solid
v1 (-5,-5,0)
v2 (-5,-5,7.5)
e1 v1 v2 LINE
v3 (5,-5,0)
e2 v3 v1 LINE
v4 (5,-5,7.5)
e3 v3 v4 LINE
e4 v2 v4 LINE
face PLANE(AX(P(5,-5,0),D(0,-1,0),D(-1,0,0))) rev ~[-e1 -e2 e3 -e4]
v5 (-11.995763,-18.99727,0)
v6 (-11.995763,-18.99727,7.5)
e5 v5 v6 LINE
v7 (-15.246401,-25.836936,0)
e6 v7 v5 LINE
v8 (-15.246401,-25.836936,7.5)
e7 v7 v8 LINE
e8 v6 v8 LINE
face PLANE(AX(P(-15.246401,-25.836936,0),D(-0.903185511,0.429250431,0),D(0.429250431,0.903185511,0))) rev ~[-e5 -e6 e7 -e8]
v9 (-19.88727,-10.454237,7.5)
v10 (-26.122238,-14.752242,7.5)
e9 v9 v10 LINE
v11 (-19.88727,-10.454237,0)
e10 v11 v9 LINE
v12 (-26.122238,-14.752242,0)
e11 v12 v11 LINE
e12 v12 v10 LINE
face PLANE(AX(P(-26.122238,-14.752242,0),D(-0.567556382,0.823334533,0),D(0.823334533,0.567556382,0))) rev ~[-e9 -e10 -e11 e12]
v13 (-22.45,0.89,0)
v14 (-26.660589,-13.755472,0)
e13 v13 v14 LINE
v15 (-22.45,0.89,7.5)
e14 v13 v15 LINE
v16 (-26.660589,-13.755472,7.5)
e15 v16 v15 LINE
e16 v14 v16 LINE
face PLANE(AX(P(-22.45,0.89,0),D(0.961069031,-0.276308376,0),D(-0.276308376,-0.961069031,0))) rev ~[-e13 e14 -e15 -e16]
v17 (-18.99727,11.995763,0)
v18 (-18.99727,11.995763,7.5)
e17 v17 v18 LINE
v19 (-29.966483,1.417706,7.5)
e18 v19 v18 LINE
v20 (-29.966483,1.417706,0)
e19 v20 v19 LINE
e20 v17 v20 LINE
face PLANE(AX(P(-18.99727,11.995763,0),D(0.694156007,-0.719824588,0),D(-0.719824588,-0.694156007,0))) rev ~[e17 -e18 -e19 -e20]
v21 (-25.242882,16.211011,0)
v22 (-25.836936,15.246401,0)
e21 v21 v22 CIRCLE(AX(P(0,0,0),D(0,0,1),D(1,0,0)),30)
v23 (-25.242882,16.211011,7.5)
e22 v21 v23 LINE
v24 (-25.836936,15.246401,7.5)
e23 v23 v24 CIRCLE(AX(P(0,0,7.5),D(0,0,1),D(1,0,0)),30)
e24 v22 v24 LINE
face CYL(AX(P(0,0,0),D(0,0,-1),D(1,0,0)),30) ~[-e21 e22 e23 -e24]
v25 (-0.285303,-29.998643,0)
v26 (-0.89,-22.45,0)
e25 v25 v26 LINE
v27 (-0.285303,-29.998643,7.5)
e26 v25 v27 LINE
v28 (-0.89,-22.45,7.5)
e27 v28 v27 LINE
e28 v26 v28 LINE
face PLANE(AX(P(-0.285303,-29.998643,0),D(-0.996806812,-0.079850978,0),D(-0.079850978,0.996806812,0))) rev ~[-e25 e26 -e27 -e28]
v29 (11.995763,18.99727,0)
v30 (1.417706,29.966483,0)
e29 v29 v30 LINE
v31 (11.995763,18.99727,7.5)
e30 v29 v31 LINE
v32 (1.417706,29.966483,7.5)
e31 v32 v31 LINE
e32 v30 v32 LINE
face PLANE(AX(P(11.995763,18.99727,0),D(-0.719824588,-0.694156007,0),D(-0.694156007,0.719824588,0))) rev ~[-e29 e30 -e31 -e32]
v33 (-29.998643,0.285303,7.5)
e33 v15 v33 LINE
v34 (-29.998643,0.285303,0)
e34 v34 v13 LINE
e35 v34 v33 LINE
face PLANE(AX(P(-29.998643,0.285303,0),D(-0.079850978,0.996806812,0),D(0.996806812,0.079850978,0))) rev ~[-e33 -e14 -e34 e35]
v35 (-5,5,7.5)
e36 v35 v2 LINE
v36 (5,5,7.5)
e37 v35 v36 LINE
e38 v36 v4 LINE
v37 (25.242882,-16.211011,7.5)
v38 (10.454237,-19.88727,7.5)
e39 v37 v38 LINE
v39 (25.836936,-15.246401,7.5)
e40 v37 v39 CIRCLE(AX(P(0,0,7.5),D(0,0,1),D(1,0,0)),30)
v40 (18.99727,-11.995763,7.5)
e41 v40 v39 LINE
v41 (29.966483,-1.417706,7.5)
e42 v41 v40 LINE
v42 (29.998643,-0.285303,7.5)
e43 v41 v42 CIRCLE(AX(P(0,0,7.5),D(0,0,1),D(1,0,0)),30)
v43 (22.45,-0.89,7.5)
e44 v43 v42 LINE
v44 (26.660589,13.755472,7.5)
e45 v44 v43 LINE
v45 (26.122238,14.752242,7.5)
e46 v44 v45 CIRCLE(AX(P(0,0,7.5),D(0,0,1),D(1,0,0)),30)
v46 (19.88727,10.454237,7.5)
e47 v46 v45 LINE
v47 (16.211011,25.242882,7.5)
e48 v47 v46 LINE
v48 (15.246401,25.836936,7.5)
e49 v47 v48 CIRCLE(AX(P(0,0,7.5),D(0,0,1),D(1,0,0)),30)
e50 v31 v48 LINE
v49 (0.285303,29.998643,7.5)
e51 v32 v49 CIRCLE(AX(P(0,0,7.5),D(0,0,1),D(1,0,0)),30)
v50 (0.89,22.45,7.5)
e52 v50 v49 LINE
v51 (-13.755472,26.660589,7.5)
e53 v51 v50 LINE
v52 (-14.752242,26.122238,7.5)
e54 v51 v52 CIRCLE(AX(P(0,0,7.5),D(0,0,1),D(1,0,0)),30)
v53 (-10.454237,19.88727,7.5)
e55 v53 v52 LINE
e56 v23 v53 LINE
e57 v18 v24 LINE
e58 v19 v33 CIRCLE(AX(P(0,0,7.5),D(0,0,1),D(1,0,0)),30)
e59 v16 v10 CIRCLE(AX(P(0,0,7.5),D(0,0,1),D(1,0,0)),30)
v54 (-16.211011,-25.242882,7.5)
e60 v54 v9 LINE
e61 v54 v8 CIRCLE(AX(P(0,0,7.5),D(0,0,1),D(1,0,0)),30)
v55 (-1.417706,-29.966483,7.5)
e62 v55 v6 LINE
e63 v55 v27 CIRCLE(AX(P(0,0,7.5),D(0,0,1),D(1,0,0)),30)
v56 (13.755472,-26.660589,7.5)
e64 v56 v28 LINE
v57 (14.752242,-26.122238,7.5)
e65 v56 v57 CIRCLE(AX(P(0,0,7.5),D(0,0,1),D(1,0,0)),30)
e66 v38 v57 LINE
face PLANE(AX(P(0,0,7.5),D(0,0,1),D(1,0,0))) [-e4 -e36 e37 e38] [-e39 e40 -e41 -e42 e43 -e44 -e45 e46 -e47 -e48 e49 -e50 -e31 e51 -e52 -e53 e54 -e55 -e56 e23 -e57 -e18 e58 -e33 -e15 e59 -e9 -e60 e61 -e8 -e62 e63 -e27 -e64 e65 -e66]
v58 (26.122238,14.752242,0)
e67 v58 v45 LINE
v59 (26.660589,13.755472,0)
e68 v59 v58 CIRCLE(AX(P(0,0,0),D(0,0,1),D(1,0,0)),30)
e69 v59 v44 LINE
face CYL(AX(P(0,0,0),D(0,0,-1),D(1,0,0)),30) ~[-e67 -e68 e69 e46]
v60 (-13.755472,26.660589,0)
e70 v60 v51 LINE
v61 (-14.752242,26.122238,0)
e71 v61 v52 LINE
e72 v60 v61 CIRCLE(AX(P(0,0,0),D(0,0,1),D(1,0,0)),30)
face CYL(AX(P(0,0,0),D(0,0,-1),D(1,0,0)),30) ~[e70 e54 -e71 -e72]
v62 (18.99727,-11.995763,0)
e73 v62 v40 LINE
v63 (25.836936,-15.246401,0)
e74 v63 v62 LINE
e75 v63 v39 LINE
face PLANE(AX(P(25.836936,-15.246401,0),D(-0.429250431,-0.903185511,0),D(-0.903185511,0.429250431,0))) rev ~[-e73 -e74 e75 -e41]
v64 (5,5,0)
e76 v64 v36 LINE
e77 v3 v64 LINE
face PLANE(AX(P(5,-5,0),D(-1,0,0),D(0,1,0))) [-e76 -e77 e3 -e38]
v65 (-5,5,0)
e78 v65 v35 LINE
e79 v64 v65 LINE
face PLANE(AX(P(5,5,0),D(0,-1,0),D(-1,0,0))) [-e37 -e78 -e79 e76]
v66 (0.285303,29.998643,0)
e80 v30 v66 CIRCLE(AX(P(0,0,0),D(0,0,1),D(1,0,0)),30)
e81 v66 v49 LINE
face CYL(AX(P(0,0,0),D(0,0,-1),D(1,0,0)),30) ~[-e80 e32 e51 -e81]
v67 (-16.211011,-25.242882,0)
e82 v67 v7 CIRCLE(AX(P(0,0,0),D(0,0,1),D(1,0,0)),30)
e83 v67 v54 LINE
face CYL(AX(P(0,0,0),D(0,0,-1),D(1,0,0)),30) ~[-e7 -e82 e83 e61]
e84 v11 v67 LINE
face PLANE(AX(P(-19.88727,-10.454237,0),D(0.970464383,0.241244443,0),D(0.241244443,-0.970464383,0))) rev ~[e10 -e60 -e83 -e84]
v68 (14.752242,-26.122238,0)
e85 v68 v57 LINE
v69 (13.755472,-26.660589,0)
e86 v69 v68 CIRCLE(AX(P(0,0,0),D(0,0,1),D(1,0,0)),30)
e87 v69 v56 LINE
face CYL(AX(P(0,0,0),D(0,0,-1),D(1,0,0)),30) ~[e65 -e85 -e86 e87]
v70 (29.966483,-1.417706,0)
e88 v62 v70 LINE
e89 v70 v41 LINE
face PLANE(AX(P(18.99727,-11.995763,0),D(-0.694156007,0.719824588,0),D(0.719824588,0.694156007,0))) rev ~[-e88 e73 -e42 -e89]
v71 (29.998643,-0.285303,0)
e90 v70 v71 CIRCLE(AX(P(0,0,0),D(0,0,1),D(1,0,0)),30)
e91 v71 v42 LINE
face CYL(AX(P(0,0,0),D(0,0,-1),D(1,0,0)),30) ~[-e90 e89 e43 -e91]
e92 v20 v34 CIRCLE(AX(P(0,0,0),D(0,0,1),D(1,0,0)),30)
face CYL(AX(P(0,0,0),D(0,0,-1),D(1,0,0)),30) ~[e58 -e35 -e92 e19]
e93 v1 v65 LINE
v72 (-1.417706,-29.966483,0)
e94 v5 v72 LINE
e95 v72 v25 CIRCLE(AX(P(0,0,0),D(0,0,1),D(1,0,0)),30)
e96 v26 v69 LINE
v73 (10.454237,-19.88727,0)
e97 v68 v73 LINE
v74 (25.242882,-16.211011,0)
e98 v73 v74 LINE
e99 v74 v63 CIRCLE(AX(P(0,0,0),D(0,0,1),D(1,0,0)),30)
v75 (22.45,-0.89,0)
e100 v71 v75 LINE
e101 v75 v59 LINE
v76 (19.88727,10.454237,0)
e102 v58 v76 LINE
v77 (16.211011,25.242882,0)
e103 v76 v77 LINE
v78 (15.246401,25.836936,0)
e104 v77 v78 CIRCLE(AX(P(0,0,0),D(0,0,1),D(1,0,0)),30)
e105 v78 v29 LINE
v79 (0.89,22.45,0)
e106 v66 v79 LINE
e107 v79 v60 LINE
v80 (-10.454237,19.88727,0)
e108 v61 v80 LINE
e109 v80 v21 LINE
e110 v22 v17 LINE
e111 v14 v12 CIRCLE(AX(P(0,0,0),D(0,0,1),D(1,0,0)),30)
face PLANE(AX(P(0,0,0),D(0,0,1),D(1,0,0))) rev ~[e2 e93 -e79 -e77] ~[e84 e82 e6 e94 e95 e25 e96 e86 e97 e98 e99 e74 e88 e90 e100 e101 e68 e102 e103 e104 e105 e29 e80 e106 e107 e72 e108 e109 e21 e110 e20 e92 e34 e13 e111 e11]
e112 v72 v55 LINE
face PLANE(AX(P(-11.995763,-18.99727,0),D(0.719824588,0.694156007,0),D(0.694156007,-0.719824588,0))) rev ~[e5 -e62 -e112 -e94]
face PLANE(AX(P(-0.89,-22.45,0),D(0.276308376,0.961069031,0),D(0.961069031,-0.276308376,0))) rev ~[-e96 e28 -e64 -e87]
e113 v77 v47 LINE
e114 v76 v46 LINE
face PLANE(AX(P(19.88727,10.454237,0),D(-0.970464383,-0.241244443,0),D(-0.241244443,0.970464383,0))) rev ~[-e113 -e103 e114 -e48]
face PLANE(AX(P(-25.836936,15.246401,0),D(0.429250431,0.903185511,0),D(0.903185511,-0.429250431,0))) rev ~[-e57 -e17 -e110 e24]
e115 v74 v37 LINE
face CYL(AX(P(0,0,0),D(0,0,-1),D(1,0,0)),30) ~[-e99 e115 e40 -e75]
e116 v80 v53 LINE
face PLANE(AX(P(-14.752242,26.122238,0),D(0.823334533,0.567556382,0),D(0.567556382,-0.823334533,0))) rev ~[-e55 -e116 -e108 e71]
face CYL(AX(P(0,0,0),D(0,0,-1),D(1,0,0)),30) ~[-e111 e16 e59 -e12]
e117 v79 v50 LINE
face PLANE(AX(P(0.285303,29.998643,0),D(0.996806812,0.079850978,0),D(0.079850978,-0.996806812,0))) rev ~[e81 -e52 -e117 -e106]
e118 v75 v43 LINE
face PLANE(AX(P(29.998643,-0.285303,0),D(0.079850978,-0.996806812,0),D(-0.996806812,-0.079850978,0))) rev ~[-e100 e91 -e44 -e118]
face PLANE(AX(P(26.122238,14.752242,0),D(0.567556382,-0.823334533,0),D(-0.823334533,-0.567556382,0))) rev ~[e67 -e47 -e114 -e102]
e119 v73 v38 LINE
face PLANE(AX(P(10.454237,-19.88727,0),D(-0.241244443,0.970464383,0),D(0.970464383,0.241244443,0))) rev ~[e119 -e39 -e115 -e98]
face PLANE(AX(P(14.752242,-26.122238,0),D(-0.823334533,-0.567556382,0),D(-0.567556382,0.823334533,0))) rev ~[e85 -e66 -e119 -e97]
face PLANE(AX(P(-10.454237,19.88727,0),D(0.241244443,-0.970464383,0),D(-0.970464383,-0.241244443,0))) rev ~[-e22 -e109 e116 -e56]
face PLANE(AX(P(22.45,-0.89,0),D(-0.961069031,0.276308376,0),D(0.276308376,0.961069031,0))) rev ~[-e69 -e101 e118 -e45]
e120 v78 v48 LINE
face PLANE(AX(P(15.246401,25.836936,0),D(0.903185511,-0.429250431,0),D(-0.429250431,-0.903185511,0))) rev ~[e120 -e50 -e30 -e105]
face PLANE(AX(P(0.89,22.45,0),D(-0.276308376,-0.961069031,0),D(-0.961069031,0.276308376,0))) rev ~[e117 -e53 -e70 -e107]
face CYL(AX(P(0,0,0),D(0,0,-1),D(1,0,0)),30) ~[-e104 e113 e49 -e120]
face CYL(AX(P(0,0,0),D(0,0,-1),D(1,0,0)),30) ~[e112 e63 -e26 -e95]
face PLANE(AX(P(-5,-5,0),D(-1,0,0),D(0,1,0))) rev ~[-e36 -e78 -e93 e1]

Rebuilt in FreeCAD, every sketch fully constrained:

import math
import FreeCAD as App
import Part
import Sketcher

V = App.Vector
Q = App.Units.Quantity


def add_polygon(sketch, points):
    """Adds a closed chain of lines whose ends are joined by coincident constraints."""
    first, n = sketch.GeometryCount, len(points)
    for a, b in zip(points, points[1:] + points[:1]):
        sketch.addGeometry(Part.LineSegment(App.Vector(*a, 0), App.Vector(*b, 0)), False)
    for i in range(n):
        sketch.addConstraint(Sketcher.Constraint("Coincident", first + i, 2, first + (i + 1) % n, 1))

doc = App.newDocument("Part")
body = doc.addObject("PartDesign::Body", "Body")

# Sketch on XY plane
sketch1 = doc.addObject("Sketcher::SketchObject", "Sketch")
body.addObject(sketch1)
sketch1.AttachmentSupport = (doc.XY_Plane, [""])
sketch1.MapMode = "FlatFace"
sketch1.addGeometry(Part.Circle(V(0, 0, 0), V(0, 0, 1), 30), False)
sketch1.addConstraint(Sketcher.Constraint("Coincident", 0, 3, -1, 1))
sketch1.addConstraint(Sketcher.Constraint("Diameter", 0, Q("60 mm")))
pad1 = doc.addObject("PartDesign::Pad", "Pad")
body.addObject(pad1)
pad1.Profile = sketch1
pad1.Length = 7.5

# Sketch on XY plane
sketch2 = doc.addObject("Sketcher::SketchObject", "Sketch001")
body.addObject(sketch2)
sketch2.AttachmentSupport = (doc.XY_Plane, [""])
sketch2.MapMode = "FlatFace"
add_polygon(sketch2, [(5, 5), (5, -5), (-5, -5), (-5, 5)])  # lines 0-3
sketch2.addConstraint(Sketcher.Constraint("Vertical", 0))
sketch2.addConstraint(Sketcher.Constraint("Horizontal", 1))
sketch2.addConstraint(Sketcher.Constraint("Vertical", 2))
sketch2.addConstraint(Sketcher.Constraint("Horizontal", 3))
sketch2.addConstraint(Sketcher.Constraint("Symmetric", 0, 2, 2, 2, -1, 1))
sketch2.addConstraint(Sketcher.Constraint("Equal", 3, 0))
sketch2.addConstraint(Sketcher.Constraint("DistanceX", 1, 2, 1, 1, Q("10 mm")))
pocket1 = doc.addObject("PartDesign::Pocket", "Pocket")
body.addObject(pocket1)
pocket1.Profile = sketch2
pocket1.Type = "ThroughAll"
pocket1.Reversed = True

# Sketch on XY plane
sketch3 = doc.addObject("Sketcher::SketchObject", "Sketch002")
body.addObject(sketch3)
sketch3.AttachmentSupport = (doc.XY_Plane, [""])
sketch3.MapMode = "FlatFace"
sketch3.addGeometry(Part.LineSegment(V(0, 30, 0), V(1, 22, 0)), False)
sketch3.addGeometry(Part.LineSegment(V(1, 22, 0), V(-14, 27, 0)), False)
sketch3.addGeometry(Part.ArcOfCircle(Part.Circle(V(0, 0, 0), V(0, 0, 1), 30), math.radians(89), math.radians(117)), False)
sketch3.addGeometry(Part.LineSegment(V(-10, 20, 0), V(-25, 16, 0)), False)
sketch3.addGeometry(Part.ArcOfCircle(Part.Circle(V(0, 0, 0), V(0, 0, 1), 30), math.radians(119), math.radians(147)), False)
sketch3.addGeometry(Part.LineSegment(V(-15, 26, 0), V(-10, 20, 0)), False)
sketch3.addGeometry(Part.LineSegment(V(-19, 12, 0), V(-30, 1, 0)), False)
sketch3.addGeometry(Part.ArcOfCircle(Part.Circle(V(0, 0, 0), V(0, 0, 1), 30), math.radians(149), math.radians(177)), False)
sketch3.addGeometry(Part.LineSegment(V(-26, 15, 0), V(-19, 12, 0)), False)
sketch3.addGeometry(Part.LineSegment(V(-22, 1, 0), V(-27, -14, 0)), False)
sketch3.addGeometry(Part.ArcOfCircle(Part.Circle(V(0, 0, 0), V(0, 0, 1), 30), math.radians(179), math.radians(207)), False)
sketch3.addGeometry(Part.LineSegment(V(-30, 0, 0), V(-22, 1, 0)), False)
sketch3.addGeometry(Part.LineSegment(V(-20, -10, 0), V(-16, -25, 0)), False)
sketch3.addGeometry(Part.ArcOfCircle(Part.Circle(V(0, 0, 0), V(0, 0, 1), 30), math.radians(-151), math.radians(-123)), False)
sketch3.addGeometry(Part.LineSegment(V(-26, -15, 0), V(-20, -10, 0)), False)
sketch3.addGeometry(Part.LineSegment(V(-12, -19, 0), V(-1, -30, 0)), False)
sketch3.addGeometry(Part.ArcOfCircle(Part.Circle(V(0, 0, 0), V(0, 0, 1), 30), math.radians(-121), math.radians(-93)), False)
sketch3.addGeometry(Part.LineSegment(V(-15, -26, 0), V(-12, -19, 0)), False)
sketch3.addGeometry(Part.LineSegment(V(-1, -22, 0), V(14, -27, 0)), False)
sketch3.addGeometry(Part.ArcOfCircle(Part.Circle(V(0, 0, 0), V(0, 0, 1), 30), math.radians(-91), math.radians(-63)), False)
sketch3.addGeometry(Part.LineSegment(V(0, -30, 0), V(-1, -22, 0)), False)
sketch3.addGeometry(Part.LineSegment(V(10, -20, 0), V(25, -16, 0)), False)
sketch3.addGeometry(Part.ArcOfCircle(Part.Circle(V(0, 0, 0), V(0, 0, 1), 30), math.radians(-61), math.radians(-33)), False)
sketch3.addGeometry(Part.LineSegment(V(15, -26, 0), V(10, -20, 0)), False)
sketch3.addGeometry(Part.LineSegment(V(19, -12, 0), V(30, -1, 0)), False)
sketch3.addGeometry(Part.ArcOfCircle(Part.Circle(V(0, 0, 0), V(0, 0, 1), 30), math.radians(-31), math.radians(-3)), False)
sketch3.addGeometry(Part.LineSegment(V(26, -15, 0), V(19, -12, 0)), False)
sketch3.addGeometry(Part.LineSegment(V(22, -1, 0), V(27, 14, 0)), False)
sketch3.addGeometry(Part.ArcOfCircle(Part.Circle(V(0, 0, 0), V(0, 0, 1), 30), math.radians(-1), math.radians(27)), False)
sketch3.addGeometry(Part.LineSegment(V(30, 0, 0), V(22, -1, 0)), False)
sketch3.addGeometry(Part.LineSegment(V(20, 10, 0), V(16, 25, 0)), False)
sketch3.addGeometry(Part.ArcOfCircle(Part.Circle(V(0, 0, 0), V(0, 0, 1), 30), math.radians(29), math.radians(57)), False)
sketch3.addGeometry(Part.LineSegment(V(26, 15, 0), V(20, 10, 0)), False)
sketch3.addGeometry(Part.LineSegment(V(12, 19, 0), V(1, 30, 0)), False)
sketch3.addGeometry(Part.ArcOfCircle(Part.Circle(V(0, 0, 0), V(0, 0, 1), 30), math.radians(59), math.radians(87)), False)
sketch3.addGeometry(Part.LineSegment(V(15, 26, 0), V(12, 19, 0)), False)
sketch3.addConstraint(Sketcher.Constraint("Coincident", 0, 2, 1, 1))
sketch3.addConstraint(Sketcher.Constraint("Coincident", 1, 2, 2, 2))
sketch3.addConstraint(Sketcher.Constraint("Coincident", 2, 1, 0, 1))
sketch3.addConstraint(Sketcher.Constraint("Coincident", 3, 2, 4, 2))
sketch3.addConstraint(Sketcher.Constraint("Coincident", 4, 1, 5, 1))
sketch3.addConstraint(Sketcher.Constraint("Coincident", 5, 2, 3, 1))
sketch3.addConstraint(Sketcher.Constraint("Coincident", 6, 2, 7, 2))
sketch3.addConstraint(Sketcher.Constraint("Coincident", 7, 1, 8, 1))
sketch3.addConstraint(Sketcher.Constraint("Coincident", 8, 2, 6, 1))
sketch3.addConstraint(Sketcher.Constraint("Coincident", 9, 2, 10, 2))
sketch3.addConstraint(Sketcher.Constraint("Coincident", 10, 1, 11, 1))
sketch3.addConstraint(Sketcher.Constraint("Coincident", 11, 2, 9, 1))
sketch3.addConstraint(Sketcher.Constraint("Coincident", 12, 2, 13, 2))
sketch3.addConstraint(Sketcher.Constraint("Coincident", 13, 1, 14, 1))
sketch3.addConstraint(Sketcher.Constraint("Coincident", 14, 2, 12, 1))
sketch3.addConstraint(Sketcher.Constraint("Coincident", 15, 2, 16, 2))
sketch3.addConstraint(Sketcher.Constraint("Coincident", 16, 1, 17, 1))
sketch3.addConstraint(Sketcher.Constraint("Coincident", 17, 2, 15, 1))
sketch3.addConstraint(Sketcher.Constraint("Coincident", 18, 2, 19, 2))
sketch3.addConstraint(Sketcher.Constraint("Coincident", 19, 1, 20, 1))
sketch3.addConstraint(Sketcher.Constraint("Coincident", 20, 2, 18, 1))
sketch3.addConstraint(Sketcher.Constraint("Coincident", 21, 2, 22, 2))
sketch3.addConstraint(Sketcher.Constraint("Coincident", 22, 1, 23, 1))
sketch3.addConstraint(Sketcher.Constraint("Coincident", 23, 2, 21, 1))
sketch3.addConstraint(Sketcher.Constraint("Coincident", 24, 2, 25, 2))
sketch3.addConstraint(Sketcher.Constraint("Coincident", 25, 1, 26, 1))
sketch3.addConstraint(Sketcher.Constraint("Coincident", 26, 2, 24, 1))
sketch3.addConstraint(Sketcher.Constraint("Coincident", 27, 2, 28, 2))
sketch3.addConstraint(Sketcher.Constraint("Coincident", 28, 1, 29, 1))
sketch3.addConstraint(Sketcher.Constraint("Coincident", 29, 2, 27, 1))
sketch3.addConstraint(Sketcher.Constraint("Coincident", 30, 2, 31, 2))
sketch3.addConstraint(Sketcher.Constraint("Coincident", 31, 1, 32, 1))
sketch3.addConstraint(Sketcher.Constraint("Coincident", 32, 2, 30, 1))
sketch3.addConstraint(Sketcher.Constraint("Coincident", 33, 2, 34, 2))
sketch3.addConstraint(Sketcher.Constraint("Coincident", 34, 1, 35, 1))
sketch3.addConstraint(Sketcher.Constraint("Coincident", 35, 2, 33, 1))
sketch3.addConstraint(Sketcher.Constraint("Coincident", 2, 3, -1, 1))
sketch3.addConstraint(Sketcher.Constraint("Coincident", 4, 3, -1, 1))
sketch3.addConstraint(Sketcher.Constraint("Coincident", 7, 3, -1, 1))
sketch3.addConstraint(Sketcher.Constraint("Coincident", 10, 3, -1, 1))
sketch3.addConstraint(Sketcher.Constraint("Coincident", 13, 3, -1, 1))
sketch3.addConstraint(Sketcher.Constraint("Coincident", 16, 3, -1, 1))
sketch3.addConstraint(Sketcher.Constraint("Coincident", 19, 3, -1, 1))
sketch3.addConstraint(Sketcher.Constraint("Coincident", 22, 3, -1, 1))
sketch3.addConstraint(Sketcher.Constraint("Coincident", 25, 3, -1, 1))
sketch3.addConstraint(Sketcher.Constraint("Coincident", 28, 3, -1, 1))
sketch3.addConstraint(Sketcher.Constraint("Coincident", 31, 3, -1, 1))
sketch3.addConstraint(Sketcher.Constraint("Coincident", 34, 3, -1, 1))
sketch3.addConstraint(Sketcher.Constraint("Equal", 2, 4))
sketch3.addConstraint(Sketcher.Constraint("Equal", 4, 7))
sketch3.addConstraint(Sketcher.Constraint("Equal", 7, 10))
sketch3.addConstraint(Sketcher.Constraint("Equal", 10, 13))
sketch3.addConstraint(Sketcher.Constraint("Equal", 13, 16))
sketch3.addConstraint(Sketcher.Constraint("Equal", 16, 19))
sketch3.addConstraint(Sketcher.Constraint("Equal", 19, 22))
sketch3.addConstraint(Sketcher.Constraint("Equal", 22, 25))
sketch3.addConstraint(Sketcher.Constraint("Equal", 25, 28))
sketch3.addConstraint(Sketcher.Constraint("Equal", 28, 31))
sketch3.addConstraint(Sketcher.Constraint("Equal", 31, 34))
sketch3.addConstraint(Sketcher.Constraint("Symmetric", 0, 2, 20, 2, -1, 1))
sketch3.addConstraint(Sketcher.Constraint("Symmetric", 5, 2, 23, 2, -1, 1))
sketch3.addConstraint(Sketcher.Constraint("Symmetric", 8, 2, 26, 2, -1, 1))
sketch3.addConstraint(Sketcher.Constraint("Symmetric", 11, 2, 29, 2, -1, 1))
sketch3.addConstraint(Sketcher.Constraint("Symmetric", 14, 2, 32, 2, -1, 1))
sketch3.addConstraint(Sketcher.Constraint("Symmetric", 17, 2, 35, 2, -1, 1))
sketch3.addConstraint(Sketcher.Constraint("Perpendicular", 1, 9))
sketch3.addConstraint(Sketcher.Constraint("Perpendicular", 0, 11))
sketch3.addConstraint(Sketcher.Constraint("Perpendicular", 3, 12))
sketch3.addConstraint(Sketcher.Constraint("Perpendicular", 5, 14))
sketch3.addConstraint(Sketcher.Constraint("Perpendicular", 6, 15))
sketch3.addConstraint(Sketcher.Constraint("Perpendicular", 8, 17))
sketch3.addConstraint(Sketcher.Constraint("Perpendicular", 9, 18))
sketch3.addConstraint(Sketcher.Constraint("Perpendicular", 11, 20))
sketch3.addConstraint(Sketcher.Constraint("Perpendicular", 12, 21))
sketch3.addConstraint(Sketcher.Constraint("Perpendicular", 14, 23))
sketch3.addConstraint(Sketcher.Constraint("Perpendicular", 15, 24))
sketch3.addConstraint(Sketcher.Constraint("Perpendicular", 17, 26))
sketch3.addConstraint(Sketcher.Constraint("Perpendicular", 18, 27))
sketch3.addConstraint(Sketcher.Constraint("Perpendicular", 20, 29))
sketch3.addConstraint(Sketcher.Constraint("Perpendicular", 21, 30))
sketch3.addConstraint(Sketcher.Constraint("Perpendicular", 23, 32))
sketch3.addConstraint(Sketcher.Constraint("Perpendicular", 24, 33))
sketch3.addConstraint(Sketcher.Constraint("Perpendicular", 26, 35))
sketch3.addConstraint(Sketcher.Constraint("Equal", 1, 3))
sketch3.addConstraint(Sketcher.Constraint("Equal", 0, 5))
sketch3.addConstraint(Sketcher.Constraint("Equal", 3, 6))
sketch3.addConstraint(Sketcher.Constraint("Equal", 5, 8))
sketch3.addConstraint(Sketcher.Constraint("Equal", 6, 9))
sketch3.addConstraint(Sketcher.Constraint("Equal", 8, 11))
sketch3.addConstraint(Sketcher.Constraint("Equal", 9, 12))
sketch3.addConstraint(Sketcher.Constraint("Equal", 11, 14))
sketch3.addConstraint(Sketcher.Constraint("Equal", 12, 15))
sketch3.addConstraint(Sketcher.Constraint("Equal", 14, 17))
sketch3.addConstraint(Sketcher.Constraint("Radius", 2, Q("30 mm")))
sketch3.addConstraint(Sketcher.Constraint("Angle", 0, Q("-85.42 deg")))
sketch3.addConstraint(Sketcher.Constraint("Angle", 1, Q("163.96 deg")))
sketch3.addConstraint(Sketcher.Constraint("Angle", 3, Q("-166.04 deg")))
sketch3.addConstraint(Sketcher.Constraint("Angle", 5, Q("-55.42 deg")))
sketch3.addConstraint(Sketcher.Constraint("Angle", 6, Q("-136.04 deg")))
sketch3.addConstraint(Sketcher.Constraint("Angle", 8, Q("-25.42 deg")))
sketch3.addConstraint(Sketcher.Constraint("DistanceX", -1, 1, 0, 2, Q("0.89 mm")))
sketch3.addConstraint(Sketcher.Constraint("DistanceY", -1, 1, 0, 2, Q("22.45 mm")))
pocket2 = doc.addObject("PartDesign::Pocket", "Pocket001")
body.addObject(pocket2)
pocket2.Profile = sketch3
pocket2.Type = "ThroughAll"
pocket2.Reversed = True

doc.recompute()
